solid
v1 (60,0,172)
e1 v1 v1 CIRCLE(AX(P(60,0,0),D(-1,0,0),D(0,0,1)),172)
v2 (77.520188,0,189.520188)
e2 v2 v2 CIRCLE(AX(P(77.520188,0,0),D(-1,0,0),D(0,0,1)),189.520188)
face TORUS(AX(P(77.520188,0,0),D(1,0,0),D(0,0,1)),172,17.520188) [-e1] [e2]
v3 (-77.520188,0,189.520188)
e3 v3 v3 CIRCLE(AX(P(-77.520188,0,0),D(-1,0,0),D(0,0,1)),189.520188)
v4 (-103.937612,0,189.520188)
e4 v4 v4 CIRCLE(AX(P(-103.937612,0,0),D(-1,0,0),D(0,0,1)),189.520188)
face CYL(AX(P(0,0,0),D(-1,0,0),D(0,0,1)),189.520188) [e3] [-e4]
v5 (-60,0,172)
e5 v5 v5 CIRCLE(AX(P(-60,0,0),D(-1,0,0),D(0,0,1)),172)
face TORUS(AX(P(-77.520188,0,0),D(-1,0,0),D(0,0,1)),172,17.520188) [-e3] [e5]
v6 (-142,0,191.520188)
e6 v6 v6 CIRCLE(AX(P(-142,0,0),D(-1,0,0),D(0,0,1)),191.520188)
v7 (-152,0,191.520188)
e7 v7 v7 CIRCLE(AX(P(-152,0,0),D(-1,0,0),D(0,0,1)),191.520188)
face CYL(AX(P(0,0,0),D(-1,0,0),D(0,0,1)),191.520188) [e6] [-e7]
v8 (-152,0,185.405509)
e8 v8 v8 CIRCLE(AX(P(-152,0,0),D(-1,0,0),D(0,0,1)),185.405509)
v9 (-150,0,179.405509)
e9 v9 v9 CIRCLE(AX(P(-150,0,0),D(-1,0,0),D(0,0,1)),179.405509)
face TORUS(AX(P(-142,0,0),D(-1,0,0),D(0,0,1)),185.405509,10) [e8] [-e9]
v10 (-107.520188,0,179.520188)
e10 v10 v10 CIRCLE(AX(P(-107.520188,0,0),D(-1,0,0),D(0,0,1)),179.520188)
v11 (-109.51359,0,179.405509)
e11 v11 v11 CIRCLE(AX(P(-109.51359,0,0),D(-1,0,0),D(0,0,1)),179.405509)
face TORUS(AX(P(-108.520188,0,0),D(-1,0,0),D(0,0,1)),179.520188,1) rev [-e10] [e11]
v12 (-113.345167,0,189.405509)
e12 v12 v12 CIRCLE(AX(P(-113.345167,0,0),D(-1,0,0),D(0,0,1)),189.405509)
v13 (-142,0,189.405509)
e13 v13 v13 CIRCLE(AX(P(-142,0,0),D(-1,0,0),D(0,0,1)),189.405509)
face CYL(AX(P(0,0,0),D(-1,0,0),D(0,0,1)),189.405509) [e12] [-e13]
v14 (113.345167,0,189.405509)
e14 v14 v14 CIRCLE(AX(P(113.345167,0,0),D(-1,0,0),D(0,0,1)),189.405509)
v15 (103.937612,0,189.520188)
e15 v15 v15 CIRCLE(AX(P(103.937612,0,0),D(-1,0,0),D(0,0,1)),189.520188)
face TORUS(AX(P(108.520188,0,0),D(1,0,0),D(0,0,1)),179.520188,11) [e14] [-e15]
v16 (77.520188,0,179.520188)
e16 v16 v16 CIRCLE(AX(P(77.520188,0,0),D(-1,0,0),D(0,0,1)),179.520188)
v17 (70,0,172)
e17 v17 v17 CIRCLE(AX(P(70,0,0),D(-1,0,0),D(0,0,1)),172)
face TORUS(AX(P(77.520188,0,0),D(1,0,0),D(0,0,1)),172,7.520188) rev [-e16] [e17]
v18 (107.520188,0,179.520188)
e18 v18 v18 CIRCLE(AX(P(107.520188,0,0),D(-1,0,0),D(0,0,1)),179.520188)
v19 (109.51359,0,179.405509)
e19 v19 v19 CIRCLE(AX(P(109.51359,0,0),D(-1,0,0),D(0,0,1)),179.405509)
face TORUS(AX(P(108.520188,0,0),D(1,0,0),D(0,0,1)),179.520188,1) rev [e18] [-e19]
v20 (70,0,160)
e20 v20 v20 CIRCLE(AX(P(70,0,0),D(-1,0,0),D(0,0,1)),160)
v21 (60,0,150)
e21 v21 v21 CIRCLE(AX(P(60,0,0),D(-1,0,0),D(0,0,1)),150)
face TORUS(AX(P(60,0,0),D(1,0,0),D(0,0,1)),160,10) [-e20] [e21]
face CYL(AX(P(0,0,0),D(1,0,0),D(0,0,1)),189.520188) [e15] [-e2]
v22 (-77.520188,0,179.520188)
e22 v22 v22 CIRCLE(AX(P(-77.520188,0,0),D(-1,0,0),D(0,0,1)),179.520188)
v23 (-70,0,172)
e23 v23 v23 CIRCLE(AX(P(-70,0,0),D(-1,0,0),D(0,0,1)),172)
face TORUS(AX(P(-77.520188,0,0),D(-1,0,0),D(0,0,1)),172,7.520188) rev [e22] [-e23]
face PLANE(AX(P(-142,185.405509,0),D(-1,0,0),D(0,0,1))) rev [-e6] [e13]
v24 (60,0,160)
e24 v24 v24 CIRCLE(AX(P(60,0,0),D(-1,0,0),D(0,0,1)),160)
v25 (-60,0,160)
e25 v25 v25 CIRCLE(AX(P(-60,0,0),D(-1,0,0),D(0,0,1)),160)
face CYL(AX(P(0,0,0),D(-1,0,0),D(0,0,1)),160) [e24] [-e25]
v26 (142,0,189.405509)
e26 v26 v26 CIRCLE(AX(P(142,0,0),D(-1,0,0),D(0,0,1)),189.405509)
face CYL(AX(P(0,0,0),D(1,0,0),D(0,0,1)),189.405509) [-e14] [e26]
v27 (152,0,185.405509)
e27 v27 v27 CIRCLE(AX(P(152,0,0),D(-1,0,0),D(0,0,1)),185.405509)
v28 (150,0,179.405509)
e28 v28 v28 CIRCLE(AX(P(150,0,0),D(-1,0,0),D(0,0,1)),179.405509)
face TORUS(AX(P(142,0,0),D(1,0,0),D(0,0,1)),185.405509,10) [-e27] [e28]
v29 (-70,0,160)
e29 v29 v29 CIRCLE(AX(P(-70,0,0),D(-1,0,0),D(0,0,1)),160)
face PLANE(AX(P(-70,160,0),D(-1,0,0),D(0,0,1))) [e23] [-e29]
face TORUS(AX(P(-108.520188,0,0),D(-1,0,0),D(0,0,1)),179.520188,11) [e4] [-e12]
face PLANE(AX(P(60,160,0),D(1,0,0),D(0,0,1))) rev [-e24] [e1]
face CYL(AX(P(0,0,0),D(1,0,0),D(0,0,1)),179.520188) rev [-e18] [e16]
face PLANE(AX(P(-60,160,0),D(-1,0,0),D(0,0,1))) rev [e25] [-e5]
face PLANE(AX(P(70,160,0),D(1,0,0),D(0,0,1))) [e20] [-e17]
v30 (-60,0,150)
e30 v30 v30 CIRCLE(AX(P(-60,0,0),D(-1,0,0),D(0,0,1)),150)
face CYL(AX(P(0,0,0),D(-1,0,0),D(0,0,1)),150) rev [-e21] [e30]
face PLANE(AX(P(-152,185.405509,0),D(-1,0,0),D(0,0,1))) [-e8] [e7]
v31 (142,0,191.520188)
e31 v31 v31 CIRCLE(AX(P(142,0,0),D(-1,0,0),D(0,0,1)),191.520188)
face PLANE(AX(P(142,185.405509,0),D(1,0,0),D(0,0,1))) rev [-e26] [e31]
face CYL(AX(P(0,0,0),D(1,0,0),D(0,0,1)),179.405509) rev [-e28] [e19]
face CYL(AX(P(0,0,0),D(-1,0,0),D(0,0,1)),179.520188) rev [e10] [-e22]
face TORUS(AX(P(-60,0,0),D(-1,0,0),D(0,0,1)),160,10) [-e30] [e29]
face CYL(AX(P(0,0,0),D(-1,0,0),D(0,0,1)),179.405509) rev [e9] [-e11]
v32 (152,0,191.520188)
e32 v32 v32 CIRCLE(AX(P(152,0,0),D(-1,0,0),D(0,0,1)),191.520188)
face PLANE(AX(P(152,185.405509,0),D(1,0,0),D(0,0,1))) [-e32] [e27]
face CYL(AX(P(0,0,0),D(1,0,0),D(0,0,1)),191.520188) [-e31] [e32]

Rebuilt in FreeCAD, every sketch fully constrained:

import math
import FreeCAD as App
import Part
import Sketcher
from FreeCAD import Vector

doc = App.newDocument("Part")
body = doc.addObject("PartDesign::Body", "Body")

# Sketch on XY plane
sketch1 = doc.addObject("Sketcher::SketchObject", "Sketch")
body.addObject(sketch1)
sketch1.AttachmentSupport = (doc.XY_Plane, [""])
sketch1.MapMode = "FlatFace"
sketch1.addGeometry(Part.LineSegment(Vector(-60, 150, 0), Vector(0, 150, 0)), False)
sketch1.addGeometry(Part.LineSegment(Vector(0, 150, 0), Vector(0, 160, 0)), False)
sketch1.addGeometry(Part.LineSegment(Vector(0, 160, 0), Vector(-60, 160, 0)), False)
sketch1.addGeometry(Part.LineSegment(Vector(-60, 160, 0), Vector(-60, 172, 0)), False)
sketch1.addGeometry(Part.ArcOfCircle(Part.Circle(Vector(-77.520188, 172, 0), Vector(0, 0, 1), 17.520188), math.radians(0), math.radians(90)), False)
sketch1.addGeometry(Part.LineSegment(Vector(-77.520188, 189.520188, 0), Vector(-103.937612, 189.520188, 0)), False)
sketch1.addGeometry(Part.ArcOfCircle(Part.Circle(Vector(-108.520188, 179.520188, 0), Vector(0, 0, 1), 11), math.radians(65.380023), math.radians(116.016787)), False)
sketch1.addGeometry(Part.LineSegment(Vector(-113.345167, 189.405509, 0), Vector(-142, 189.405509, 0)), False)
sketch1.addGeometry(Part.LineSegment(Vector(-142, 189.405509, 0), Vector(-142, 191.520188, 0)), False)
sketch1.addGeometry(Part.LineSegment(Vector(-142, 191.520188, 0), Vector(-152, 191.520188, 0)), False)
sketch1.addGeometry(Part.LineSegment(Vector(-152, 191.520188, 0), Vector(-152, 185.405509, 0)), False)
sketch1.addGeometry(Part.ArcOfCircle(Part.Circle(Vector(-142, 185.405509, 0), Vector(0, 0, 1), 10), math.radians(180), math.radians(216.869898)), False)
sketch1.addGeometry(Part.LineSegment(Vector(-150, 179.405509, 0), Vector(-109.51359, 179.405509, 0)), False)
sketch1.addGeometry(Part.ArcOfCircle(Part.Circle(Vector(-108.520188, 179.520188, 0), Vector(0, 0, 1), 1), math.radians(0), math.radians(186.585094)), False)
sketch1.addGeometry(Part.LineSegment(Vector(-107.520188, 179.520188, 0), Vector(-77.520188, 179.520188, 0)), False)
sketch1.addGeometry(Part.ArcOfCircle(Part.Circle(Vector(-77.520188, 172, 0), Vector(0, 0, 1), 7.520188), math.radians(0), math.radians(90)), False)
sketch1.addGeometry(Part.LineSegment(Vector(-70, 172, 0), Vector(-70, 160, 0)), False)
sketch1.addGeometry(Part.ArcOfCircle(Part.Circle(Vector(-60, 160, 0), Vector(0, 0, 1), 10), math.radians(180), math.radians(270)), False)
sketch1.addConstraint(Sketcher.Constraint("Coincident", 0, 2, 1, 1))
sketch1.addConstraint(Sketcher.Constraint("Coincident", 1, 2, 2, 1))
sketch1.addConstraint(Sketcher.Constraint("Coincident", 2, 2, 3, 1))
sketch1.addConstraint(Sketcher.Constraint("Tangent", 3, 2, 4, 1))
sketch1.addConstraint(Sketcher.Constraint("Tangent", 4, 2, 5, 1))
sketch1.addConstraint(Sketcher.Constraint("Coincident", 5, 2, 6, 1))
sketch1.addConstraint(Sketcher.Constraint("Coincident", 6, 2, 7, 1))
sketch1.addConstraint(Sketcher.Constraint("Coincident", 7, 2, 8, 1))
sketch1.addConstraint(Sketcher.Constraint("Coincident", 8, 2, 9, 1))
sketch1.addConstraint(Sketcher.Constraint("Coincident", 9, 2, 10, 1))
sketch1.addConstraint(Sketcher.Constraint("Tangent", 10, 2, 11, 1))
sketch1.addConstraint(Sketcher.Constraint("Coincident", 11, 2, 12, 1))
sketch1.addConstraint(Sketcher.Constraint("Coincident", 12, 2, 13, 2))
sketch1.addConstraint(Sketcher.Constraint("Coincident", 13, 1, 14, 1))
sketch1.addConstraint(Sketcher.Constraint("Tangent", 14, 2, 15, 2))
sketch1.addConstraint(Sketcher.Constraint("Tangent", 15, 1, 16, 1))
sketch1.addConstraint(Sketcher.Constraint("Tangent", 16, 2, 17, 1))
sketch1.addConstraint(Sketcher.Constraint("Tangent", 17, 2, 0, 1))
sketch1.addConstraint(Sketcher.Constraint("Horizontal", 0))
sketch1.addConstraint(Sketcher.Constraint("Vertical", 1))
sketch1.addConstraint(Sketcher.Constraint("Horizontal", 2))
sketch1.addConstraint(Sketcher.Constraint("Vertical", 3))
sketch1.addConstraint(Sketcher.Constraint("Horizontal", 5))
sketch1.addConstraint(Sketcher.Constraint("Horizontal", 7))
sketch1.addConstraint(Sketcher.Constraint("Vertical", 8))
sketch1.addConstraint(Sketcher.Constraint("Horizontal", 9))
sketch1.addConstraint(Sketcher.Constraint("Vertical", 10))
sketch1.addConstraint(Sketcher.Constraint("Horizontal", 12))
sketch1.addConstraint(Sketcher.Constraint("Horizontal", 14))
sketch1.addConstraint(Sketcher.Constraint("Vertical", 16))
sketch1.addConstraint(Sketcher.Constraint("Coincident", 13, 3, 6, 3))
sketch1.addConstraint(Sketcher.Constraint("Coincident", 15, 3, 4, 3))
sketch1.addConstraint(Sketcher.Constraint("Coincident", 2, 2, 17, 3))
sketch1.addConstraint(Sketcher.Constraint("Equal", 11, 17))
sketch1.addConstraint(Sketcher.Constraint("PointOnObject", 0, 2, -2))
sketch1.addConstraint(Sketcher.Constraint("Horizontal", 6, 3, 13, 1))
sketch1.addConstraint(Sketcher.Constraint("Vertical", 11, 3, 7, 2))
sketch1.addConstraint(Sketcher.Constraint("Radius", 6, 11.0))
sketch1.addConstraint(Sketcher.Constraint("Radius", 11, 10.0))
sketch1.addConstraint(Sketcher.Constraint("Radius", 13, 1.0))
sketch1.addConstraint(Sketcher.Constraint("DistanceX", 0, 1, 0, 2, 60.0))
sketch1.addConstraint(Sketcher.Constraint("DistanceX", 14, 1, 14, 2, 30.0))
sketch1.addConstraint(Sketcher.Constraint("DistanceY", 3, 1, 3, 2, 12.0))
sketch1.addConstraint(Sketcher.Constraint("DistanceY", -1, 1, 4, 3, 172.0))
sketch1.addConstraint(Sketcher.Constraint("DistanceX", 11, 3, -1, 1, 142.0))
sketch1.addConstraint(Sketcher.Constraint("DistanceX", 11, 2, -1, 1, 150.0))
sketch1.addConstraint(Sketcher.Constraint("DistanceY", 11, 3, 6, 2, 4.0))
sketch1.addConstraint(Sketcher.Constraint("DistanceY", 6, 3, 8, 2, 12.0))
sketch1.addConstraint(Sketcher.Constraint("Radius", 4, 17.520188))
sketch1.addConstraint(Sketcher.Constraint("DistanceX", 12, 1, 12, 2, 40.48641))
revolution = doc.addObject("PartDesign::Revolution", "Revolution")
body.addObject(revolution)
revolution.Profile = sketch1
revolution.ReferenceAxis = (sketch1, ["H_Axis"])
revolution.Angle = 360
body2 = doc.addObject("PartDesign::Body", "Body001")
doc.recompute()

body2.BaseFeature = body
doc.recompute()

mirroring = doc.addObject("Part::Mirroring", "Mirroring")
mirroring.Source = body
mirroring.Base = Vector(0, 160, 0)
mirroring.Normal = Vector(1, 0, 0)
body3 = doc.addObject("PartDesign::Body", "Body002")
body3.BaseFeature = mirroring
boolean = doc.addObject("PartDesign::Boolean", "Boolean")
body2.addObject(boolean)
boolean.Type = "Fuse"
boolean.addObjects([body3])
doc.recompute()
mirroring.Visibility = False

doc.recompute()
